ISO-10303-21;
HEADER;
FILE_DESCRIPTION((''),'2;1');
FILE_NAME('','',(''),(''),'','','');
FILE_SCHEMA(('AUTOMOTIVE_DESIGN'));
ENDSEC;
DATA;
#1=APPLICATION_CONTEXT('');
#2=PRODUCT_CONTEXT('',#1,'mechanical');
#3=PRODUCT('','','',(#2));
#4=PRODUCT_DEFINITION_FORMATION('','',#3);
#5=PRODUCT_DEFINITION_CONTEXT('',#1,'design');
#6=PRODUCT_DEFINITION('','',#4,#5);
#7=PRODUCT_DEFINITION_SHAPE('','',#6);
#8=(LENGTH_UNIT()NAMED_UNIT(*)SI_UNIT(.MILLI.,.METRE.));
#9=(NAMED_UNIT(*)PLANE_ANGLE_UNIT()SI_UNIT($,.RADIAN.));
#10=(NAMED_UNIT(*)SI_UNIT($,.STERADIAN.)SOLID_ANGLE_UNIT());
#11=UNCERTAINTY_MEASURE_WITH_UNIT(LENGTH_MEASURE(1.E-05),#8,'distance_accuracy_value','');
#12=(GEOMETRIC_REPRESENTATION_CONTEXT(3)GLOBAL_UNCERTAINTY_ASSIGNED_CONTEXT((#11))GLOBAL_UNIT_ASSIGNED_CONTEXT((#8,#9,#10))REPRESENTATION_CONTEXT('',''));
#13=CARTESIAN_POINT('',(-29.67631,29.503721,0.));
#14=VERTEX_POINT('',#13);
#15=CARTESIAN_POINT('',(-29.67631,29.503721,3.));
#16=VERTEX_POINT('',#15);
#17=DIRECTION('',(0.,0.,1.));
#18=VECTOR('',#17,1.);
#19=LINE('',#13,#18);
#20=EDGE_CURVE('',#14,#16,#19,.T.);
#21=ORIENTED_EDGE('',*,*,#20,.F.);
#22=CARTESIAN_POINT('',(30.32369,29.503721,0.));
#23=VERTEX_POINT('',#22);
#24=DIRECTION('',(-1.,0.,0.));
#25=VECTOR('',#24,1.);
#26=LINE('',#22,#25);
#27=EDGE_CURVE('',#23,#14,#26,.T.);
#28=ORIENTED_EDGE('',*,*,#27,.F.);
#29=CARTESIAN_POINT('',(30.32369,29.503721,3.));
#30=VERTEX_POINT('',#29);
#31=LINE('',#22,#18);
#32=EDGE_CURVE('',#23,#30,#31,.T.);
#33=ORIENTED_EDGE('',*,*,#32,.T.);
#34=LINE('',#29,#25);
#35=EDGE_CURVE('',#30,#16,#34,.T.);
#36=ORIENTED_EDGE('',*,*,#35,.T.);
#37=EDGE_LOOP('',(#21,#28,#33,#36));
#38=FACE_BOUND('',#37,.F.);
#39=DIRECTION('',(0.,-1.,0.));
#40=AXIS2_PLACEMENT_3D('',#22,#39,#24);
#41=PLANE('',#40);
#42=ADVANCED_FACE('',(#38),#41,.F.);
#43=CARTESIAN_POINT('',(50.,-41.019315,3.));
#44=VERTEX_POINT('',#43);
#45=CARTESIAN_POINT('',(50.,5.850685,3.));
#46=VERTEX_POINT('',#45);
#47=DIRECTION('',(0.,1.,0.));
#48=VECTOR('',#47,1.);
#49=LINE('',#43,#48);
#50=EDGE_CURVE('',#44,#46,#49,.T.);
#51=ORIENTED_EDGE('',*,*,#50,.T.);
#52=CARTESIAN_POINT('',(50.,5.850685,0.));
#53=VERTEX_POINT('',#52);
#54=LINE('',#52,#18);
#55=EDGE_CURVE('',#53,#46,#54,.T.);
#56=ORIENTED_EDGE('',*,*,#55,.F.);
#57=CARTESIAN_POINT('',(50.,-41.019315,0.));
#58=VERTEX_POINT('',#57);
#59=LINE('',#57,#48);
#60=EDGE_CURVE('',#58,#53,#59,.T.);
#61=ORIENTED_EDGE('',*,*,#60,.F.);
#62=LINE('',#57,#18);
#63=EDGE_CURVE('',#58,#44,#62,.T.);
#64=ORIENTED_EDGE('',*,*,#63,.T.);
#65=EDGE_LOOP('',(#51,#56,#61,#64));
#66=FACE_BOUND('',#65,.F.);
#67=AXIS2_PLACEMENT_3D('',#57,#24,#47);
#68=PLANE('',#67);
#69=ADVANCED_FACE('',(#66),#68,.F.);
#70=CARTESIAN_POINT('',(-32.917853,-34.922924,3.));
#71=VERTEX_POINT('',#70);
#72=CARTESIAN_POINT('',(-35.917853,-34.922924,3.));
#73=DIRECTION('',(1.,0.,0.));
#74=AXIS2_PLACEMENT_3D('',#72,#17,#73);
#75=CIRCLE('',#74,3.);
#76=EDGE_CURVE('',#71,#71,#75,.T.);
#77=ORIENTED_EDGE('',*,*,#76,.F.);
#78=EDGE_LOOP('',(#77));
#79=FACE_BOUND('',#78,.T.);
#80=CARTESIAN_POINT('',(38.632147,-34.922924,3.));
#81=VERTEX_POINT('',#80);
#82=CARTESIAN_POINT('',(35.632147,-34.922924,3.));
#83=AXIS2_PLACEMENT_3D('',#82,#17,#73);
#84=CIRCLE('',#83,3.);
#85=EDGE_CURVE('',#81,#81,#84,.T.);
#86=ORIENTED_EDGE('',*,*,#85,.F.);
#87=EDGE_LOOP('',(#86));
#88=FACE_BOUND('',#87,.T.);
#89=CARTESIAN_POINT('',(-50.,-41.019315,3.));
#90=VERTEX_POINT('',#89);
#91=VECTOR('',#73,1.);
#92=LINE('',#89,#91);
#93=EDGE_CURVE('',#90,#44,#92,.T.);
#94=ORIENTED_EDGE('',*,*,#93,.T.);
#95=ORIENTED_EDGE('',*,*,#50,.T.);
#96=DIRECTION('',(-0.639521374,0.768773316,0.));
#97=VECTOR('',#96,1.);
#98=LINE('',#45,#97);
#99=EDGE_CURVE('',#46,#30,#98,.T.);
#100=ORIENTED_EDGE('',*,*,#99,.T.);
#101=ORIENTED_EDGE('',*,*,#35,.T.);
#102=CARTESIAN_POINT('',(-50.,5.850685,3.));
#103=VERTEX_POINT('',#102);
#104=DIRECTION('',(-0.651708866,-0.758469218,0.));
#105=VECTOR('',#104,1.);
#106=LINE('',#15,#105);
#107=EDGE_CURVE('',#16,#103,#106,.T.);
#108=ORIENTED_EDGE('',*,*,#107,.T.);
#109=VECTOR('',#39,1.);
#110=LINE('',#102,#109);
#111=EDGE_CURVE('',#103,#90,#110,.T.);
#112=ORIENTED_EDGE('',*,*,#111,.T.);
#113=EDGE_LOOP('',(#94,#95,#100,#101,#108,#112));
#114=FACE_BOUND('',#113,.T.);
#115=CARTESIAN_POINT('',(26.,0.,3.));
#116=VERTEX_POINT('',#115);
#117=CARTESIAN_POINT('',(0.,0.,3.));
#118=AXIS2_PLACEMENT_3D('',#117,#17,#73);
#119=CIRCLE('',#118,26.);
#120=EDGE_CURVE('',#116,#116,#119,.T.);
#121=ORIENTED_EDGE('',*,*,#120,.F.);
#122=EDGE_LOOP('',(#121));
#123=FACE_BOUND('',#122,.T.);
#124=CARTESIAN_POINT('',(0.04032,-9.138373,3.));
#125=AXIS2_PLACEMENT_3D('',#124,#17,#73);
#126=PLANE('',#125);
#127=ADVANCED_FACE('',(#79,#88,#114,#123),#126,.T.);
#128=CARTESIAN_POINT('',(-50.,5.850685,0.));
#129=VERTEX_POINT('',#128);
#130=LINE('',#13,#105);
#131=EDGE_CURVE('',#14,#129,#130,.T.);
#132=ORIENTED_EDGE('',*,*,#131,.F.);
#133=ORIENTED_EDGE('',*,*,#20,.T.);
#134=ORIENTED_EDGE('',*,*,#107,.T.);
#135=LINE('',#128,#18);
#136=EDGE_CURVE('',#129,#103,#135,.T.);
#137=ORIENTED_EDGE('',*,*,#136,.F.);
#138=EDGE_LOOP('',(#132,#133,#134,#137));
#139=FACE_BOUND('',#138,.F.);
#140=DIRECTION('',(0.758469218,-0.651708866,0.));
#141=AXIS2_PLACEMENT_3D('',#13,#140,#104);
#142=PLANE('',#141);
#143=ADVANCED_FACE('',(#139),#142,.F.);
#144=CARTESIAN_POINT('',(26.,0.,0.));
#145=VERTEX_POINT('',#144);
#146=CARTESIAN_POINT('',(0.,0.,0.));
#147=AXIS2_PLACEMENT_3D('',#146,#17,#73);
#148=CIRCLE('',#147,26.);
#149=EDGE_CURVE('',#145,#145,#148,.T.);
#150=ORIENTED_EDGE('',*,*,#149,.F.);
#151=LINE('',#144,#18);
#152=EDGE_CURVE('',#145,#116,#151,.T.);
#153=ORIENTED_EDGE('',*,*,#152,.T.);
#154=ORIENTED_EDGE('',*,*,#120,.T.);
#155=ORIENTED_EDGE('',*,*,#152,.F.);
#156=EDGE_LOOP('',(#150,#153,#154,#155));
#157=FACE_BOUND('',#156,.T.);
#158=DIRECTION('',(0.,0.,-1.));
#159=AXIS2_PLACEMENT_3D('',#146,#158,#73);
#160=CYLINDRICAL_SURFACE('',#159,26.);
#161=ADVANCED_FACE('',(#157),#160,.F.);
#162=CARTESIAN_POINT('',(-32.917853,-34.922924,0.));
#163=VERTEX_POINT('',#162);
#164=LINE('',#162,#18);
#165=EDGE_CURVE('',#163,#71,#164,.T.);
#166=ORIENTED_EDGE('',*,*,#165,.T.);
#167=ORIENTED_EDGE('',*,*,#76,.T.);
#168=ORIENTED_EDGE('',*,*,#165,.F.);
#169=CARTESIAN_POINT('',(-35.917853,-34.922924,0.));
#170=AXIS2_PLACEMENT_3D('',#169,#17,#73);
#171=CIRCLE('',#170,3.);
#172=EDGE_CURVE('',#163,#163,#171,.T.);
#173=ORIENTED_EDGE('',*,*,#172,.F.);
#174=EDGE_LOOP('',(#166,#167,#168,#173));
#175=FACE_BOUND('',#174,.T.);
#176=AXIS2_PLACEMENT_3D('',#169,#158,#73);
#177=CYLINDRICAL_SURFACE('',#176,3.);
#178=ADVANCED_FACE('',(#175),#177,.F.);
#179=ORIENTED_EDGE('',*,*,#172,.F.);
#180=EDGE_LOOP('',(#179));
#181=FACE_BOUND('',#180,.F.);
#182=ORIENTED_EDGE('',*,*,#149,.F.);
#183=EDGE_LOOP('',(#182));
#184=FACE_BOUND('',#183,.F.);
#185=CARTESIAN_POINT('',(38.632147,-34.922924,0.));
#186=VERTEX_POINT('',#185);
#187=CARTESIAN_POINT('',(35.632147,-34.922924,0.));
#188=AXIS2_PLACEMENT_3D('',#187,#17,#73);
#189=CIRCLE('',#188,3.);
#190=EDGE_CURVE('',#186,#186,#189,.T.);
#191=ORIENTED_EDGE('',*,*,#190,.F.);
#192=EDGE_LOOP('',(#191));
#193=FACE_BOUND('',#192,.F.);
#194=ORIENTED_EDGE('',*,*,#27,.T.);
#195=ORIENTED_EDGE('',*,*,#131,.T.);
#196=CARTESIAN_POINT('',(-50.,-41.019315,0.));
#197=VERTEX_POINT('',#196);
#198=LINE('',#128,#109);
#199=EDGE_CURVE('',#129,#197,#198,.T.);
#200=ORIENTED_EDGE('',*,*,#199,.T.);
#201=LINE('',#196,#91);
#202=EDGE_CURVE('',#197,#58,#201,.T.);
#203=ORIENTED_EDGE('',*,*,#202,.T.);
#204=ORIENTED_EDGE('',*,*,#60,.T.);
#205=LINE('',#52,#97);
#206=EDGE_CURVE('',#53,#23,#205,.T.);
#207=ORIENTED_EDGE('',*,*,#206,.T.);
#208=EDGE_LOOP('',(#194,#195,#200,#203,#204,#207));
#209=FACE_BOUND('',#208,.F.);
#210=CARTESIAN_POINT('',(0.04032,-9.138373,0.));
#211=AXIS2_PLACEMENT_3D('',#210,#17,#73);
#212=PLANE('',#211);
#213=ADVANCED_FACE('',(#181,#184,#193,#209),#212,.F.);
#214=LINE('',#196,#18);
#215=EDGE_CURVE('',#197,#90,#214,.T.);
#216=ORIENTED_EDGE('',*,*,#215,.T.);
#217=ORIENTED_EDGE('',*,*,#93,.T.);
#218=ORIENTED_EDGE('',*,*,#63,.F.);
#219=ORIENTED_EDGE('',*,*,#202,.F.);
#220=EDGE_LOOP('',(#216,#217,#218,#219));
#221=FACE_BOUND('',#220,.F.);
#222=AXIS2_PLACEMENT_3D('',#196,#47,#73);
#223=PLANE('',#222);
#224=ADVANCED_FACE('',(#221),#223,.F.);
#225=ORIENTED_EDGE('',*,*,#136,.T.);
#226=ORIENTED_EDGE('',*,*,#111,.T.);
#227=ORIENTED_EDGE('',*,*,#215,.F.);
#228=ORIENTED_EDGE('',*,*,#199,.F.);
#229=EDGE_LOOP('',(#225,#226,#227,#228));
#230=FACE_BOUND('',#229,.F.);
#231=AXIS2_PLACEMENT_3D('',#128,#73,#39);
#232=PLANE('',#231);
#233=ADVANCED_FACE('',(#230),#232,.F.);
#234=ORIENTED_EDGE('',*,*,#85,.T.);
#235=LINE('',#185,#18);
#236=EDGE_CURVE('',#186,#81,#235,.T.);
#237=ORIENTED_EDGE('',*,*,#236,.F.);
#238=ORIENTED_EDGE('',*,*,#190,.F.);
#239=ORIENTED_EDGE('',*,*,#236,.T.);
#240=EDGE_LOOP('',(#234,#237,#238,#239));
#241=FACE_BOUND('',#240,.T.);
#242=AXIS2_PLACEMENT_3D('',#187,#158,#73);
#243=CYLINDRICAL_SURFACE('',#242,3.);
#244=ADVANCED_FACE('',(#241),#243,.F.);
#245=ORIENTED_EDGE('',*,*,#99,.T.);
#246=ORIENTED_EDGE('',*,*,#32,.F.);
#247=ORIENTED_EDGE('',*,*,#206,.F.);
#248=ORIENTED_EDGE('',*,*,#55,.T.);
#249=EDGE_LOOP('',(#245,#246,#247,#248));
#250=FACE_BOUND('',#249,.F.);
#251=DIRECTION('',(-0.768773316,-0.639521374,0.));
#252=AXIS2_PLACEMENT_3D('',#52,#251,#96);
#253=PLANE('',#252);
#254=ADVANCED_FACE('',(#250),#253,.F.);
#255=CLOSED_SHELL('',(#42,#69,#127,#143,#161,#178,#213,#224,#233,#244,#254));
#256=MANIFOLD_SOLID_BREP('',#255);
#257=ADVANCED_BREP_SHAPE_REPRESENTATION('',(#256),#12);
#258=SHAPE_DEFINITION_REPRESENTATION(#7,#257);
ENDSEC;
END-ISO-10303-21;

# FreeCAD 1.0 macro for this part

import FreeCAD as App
import Part
import Sketcher
from FreeCAD import Vector
Q = App.Units.Quantity


def add_polygon(sketch, points):
    """Adds a closed chain of lines whose ends are joined by coincident constraints."""
    first, n = sketch.GeometryCount, len(points)
    for a, b in zip(points, points[1:] + points[:1]):
        sketch.addGeometry(Part.LineSegment(App.Vector(*a, 0), App.Vector(*b, 0)), False)
    for i in range(n):
        sketch.addConstraint(Sketcher.Constraint("Coincident", first + i, 2, first + (i + 1) % n, 1))

doc = App.newDocument("Part")
body = doc.addObject("PartDesign::Body", "Body")

# Sketch on XY plane
sketch1 = doc.addObject("Sketcher::SketchObject", "Sketch")
body.addObject(sketch1)
sketch1.AttachmentSupport = (doc.XY_Plane, [""])
sketch1.MapMode = "FlatFace"
add_polygon(sketch1, [(-50, -41), (50, -41), (50, 5.9), (30.3, 29.5), (-29.7, 29.5), (-50, 5.9)])  # lines 0-5
sketch1.addGeometry(Part.Circle(Vector(-35.9, -34.9, 0), Vector(0, 0, 1), 3), False)  # 6
sketch1.addGeometry(Part.Circle(Vector(35.6, -34.9, 0), Vector(0, 0, 1), 3), False)  # 7
sketch1.addGeometry(Part.Circle(Vector(0, 0, 0), Vector(0, 0, 1), 26), False)  # 8
sketch1.addConstraint(Sketcher.Constraint("Horizontal", 0))
sketch1.addConstraint(Sketcher.Constraint("Vertical", 1))
sketch1.addConstraint(Sketcher.Constraint("Horizontal", 3))
sketch1.addConstraint(Sketcher.Constraint("Vertical", 5))
sketch1.addConstraint(Sketcher.Constraint("Coincident", 8, 3, -1, 1))
sketch1.addConstraint(Sketcher.Constraint("Equal", 6, 7))
sketch1.addConstraint(Sketcher.Constraint("Symmetric", 1, 2, 4, 2, -2))
sketch1.addConstraint(Sketcher.Constraint("Horizontal", 6, 3, 7, 3))
sketch1.addConstraint(Sketcher.Constraint("Diameter", 6, Q("6 mm")))
sketch1.addConstraint(Sketcher.Constraint("Diameter", 8, Q("52 mm")))
sketch1.addConstraint(Sketcher.Constraint("DistanceX", 0, 1, 0, 2, Q("100 mm")))
sketch1.addConstraint(Sketcher.Constraint("DistanceX", 3, 2, 3, 1, Q("60 mm")))
sketch1.addConstraint(Sketcher.Constraint("DistanceY", 1, 1, 1, 2, Q("46.87 mm")))
sketch1.addConstraint(Sketcher.Constraint("DistanceX", 6, 3, 7, 3, Q("71.55 mm")))
sketch1.addConstraint(Sketcher.Constraint("Distance", 4, Q("31.185229 mm")))
sketch1.addConstraint(Sketcher.Constraint("DistanceX", -1, 1, 2, 2, Q("30.32369 mm")))
sketch1.addConstraint(Sketcher.Constraint("DistanceY", -1, 1, 2, 2, Q("29.503721 mm")))
sketch1.addConstraint(Sketcher.Constraint("DistanceY", 0, 2, 7, 3, Q("6.096391 mm")))
sketch1.addConstraint(Sketcher.Constraint("DistanceX", 6, 3, -1, 1, Q("35.917853 mm")))
pad1 = doc.addObject("PartDesign::Pad", "Pad")
body.addObject(pad1)
pad1.Profile = sketch1
pad1.Length = 3

doc.recompute()
